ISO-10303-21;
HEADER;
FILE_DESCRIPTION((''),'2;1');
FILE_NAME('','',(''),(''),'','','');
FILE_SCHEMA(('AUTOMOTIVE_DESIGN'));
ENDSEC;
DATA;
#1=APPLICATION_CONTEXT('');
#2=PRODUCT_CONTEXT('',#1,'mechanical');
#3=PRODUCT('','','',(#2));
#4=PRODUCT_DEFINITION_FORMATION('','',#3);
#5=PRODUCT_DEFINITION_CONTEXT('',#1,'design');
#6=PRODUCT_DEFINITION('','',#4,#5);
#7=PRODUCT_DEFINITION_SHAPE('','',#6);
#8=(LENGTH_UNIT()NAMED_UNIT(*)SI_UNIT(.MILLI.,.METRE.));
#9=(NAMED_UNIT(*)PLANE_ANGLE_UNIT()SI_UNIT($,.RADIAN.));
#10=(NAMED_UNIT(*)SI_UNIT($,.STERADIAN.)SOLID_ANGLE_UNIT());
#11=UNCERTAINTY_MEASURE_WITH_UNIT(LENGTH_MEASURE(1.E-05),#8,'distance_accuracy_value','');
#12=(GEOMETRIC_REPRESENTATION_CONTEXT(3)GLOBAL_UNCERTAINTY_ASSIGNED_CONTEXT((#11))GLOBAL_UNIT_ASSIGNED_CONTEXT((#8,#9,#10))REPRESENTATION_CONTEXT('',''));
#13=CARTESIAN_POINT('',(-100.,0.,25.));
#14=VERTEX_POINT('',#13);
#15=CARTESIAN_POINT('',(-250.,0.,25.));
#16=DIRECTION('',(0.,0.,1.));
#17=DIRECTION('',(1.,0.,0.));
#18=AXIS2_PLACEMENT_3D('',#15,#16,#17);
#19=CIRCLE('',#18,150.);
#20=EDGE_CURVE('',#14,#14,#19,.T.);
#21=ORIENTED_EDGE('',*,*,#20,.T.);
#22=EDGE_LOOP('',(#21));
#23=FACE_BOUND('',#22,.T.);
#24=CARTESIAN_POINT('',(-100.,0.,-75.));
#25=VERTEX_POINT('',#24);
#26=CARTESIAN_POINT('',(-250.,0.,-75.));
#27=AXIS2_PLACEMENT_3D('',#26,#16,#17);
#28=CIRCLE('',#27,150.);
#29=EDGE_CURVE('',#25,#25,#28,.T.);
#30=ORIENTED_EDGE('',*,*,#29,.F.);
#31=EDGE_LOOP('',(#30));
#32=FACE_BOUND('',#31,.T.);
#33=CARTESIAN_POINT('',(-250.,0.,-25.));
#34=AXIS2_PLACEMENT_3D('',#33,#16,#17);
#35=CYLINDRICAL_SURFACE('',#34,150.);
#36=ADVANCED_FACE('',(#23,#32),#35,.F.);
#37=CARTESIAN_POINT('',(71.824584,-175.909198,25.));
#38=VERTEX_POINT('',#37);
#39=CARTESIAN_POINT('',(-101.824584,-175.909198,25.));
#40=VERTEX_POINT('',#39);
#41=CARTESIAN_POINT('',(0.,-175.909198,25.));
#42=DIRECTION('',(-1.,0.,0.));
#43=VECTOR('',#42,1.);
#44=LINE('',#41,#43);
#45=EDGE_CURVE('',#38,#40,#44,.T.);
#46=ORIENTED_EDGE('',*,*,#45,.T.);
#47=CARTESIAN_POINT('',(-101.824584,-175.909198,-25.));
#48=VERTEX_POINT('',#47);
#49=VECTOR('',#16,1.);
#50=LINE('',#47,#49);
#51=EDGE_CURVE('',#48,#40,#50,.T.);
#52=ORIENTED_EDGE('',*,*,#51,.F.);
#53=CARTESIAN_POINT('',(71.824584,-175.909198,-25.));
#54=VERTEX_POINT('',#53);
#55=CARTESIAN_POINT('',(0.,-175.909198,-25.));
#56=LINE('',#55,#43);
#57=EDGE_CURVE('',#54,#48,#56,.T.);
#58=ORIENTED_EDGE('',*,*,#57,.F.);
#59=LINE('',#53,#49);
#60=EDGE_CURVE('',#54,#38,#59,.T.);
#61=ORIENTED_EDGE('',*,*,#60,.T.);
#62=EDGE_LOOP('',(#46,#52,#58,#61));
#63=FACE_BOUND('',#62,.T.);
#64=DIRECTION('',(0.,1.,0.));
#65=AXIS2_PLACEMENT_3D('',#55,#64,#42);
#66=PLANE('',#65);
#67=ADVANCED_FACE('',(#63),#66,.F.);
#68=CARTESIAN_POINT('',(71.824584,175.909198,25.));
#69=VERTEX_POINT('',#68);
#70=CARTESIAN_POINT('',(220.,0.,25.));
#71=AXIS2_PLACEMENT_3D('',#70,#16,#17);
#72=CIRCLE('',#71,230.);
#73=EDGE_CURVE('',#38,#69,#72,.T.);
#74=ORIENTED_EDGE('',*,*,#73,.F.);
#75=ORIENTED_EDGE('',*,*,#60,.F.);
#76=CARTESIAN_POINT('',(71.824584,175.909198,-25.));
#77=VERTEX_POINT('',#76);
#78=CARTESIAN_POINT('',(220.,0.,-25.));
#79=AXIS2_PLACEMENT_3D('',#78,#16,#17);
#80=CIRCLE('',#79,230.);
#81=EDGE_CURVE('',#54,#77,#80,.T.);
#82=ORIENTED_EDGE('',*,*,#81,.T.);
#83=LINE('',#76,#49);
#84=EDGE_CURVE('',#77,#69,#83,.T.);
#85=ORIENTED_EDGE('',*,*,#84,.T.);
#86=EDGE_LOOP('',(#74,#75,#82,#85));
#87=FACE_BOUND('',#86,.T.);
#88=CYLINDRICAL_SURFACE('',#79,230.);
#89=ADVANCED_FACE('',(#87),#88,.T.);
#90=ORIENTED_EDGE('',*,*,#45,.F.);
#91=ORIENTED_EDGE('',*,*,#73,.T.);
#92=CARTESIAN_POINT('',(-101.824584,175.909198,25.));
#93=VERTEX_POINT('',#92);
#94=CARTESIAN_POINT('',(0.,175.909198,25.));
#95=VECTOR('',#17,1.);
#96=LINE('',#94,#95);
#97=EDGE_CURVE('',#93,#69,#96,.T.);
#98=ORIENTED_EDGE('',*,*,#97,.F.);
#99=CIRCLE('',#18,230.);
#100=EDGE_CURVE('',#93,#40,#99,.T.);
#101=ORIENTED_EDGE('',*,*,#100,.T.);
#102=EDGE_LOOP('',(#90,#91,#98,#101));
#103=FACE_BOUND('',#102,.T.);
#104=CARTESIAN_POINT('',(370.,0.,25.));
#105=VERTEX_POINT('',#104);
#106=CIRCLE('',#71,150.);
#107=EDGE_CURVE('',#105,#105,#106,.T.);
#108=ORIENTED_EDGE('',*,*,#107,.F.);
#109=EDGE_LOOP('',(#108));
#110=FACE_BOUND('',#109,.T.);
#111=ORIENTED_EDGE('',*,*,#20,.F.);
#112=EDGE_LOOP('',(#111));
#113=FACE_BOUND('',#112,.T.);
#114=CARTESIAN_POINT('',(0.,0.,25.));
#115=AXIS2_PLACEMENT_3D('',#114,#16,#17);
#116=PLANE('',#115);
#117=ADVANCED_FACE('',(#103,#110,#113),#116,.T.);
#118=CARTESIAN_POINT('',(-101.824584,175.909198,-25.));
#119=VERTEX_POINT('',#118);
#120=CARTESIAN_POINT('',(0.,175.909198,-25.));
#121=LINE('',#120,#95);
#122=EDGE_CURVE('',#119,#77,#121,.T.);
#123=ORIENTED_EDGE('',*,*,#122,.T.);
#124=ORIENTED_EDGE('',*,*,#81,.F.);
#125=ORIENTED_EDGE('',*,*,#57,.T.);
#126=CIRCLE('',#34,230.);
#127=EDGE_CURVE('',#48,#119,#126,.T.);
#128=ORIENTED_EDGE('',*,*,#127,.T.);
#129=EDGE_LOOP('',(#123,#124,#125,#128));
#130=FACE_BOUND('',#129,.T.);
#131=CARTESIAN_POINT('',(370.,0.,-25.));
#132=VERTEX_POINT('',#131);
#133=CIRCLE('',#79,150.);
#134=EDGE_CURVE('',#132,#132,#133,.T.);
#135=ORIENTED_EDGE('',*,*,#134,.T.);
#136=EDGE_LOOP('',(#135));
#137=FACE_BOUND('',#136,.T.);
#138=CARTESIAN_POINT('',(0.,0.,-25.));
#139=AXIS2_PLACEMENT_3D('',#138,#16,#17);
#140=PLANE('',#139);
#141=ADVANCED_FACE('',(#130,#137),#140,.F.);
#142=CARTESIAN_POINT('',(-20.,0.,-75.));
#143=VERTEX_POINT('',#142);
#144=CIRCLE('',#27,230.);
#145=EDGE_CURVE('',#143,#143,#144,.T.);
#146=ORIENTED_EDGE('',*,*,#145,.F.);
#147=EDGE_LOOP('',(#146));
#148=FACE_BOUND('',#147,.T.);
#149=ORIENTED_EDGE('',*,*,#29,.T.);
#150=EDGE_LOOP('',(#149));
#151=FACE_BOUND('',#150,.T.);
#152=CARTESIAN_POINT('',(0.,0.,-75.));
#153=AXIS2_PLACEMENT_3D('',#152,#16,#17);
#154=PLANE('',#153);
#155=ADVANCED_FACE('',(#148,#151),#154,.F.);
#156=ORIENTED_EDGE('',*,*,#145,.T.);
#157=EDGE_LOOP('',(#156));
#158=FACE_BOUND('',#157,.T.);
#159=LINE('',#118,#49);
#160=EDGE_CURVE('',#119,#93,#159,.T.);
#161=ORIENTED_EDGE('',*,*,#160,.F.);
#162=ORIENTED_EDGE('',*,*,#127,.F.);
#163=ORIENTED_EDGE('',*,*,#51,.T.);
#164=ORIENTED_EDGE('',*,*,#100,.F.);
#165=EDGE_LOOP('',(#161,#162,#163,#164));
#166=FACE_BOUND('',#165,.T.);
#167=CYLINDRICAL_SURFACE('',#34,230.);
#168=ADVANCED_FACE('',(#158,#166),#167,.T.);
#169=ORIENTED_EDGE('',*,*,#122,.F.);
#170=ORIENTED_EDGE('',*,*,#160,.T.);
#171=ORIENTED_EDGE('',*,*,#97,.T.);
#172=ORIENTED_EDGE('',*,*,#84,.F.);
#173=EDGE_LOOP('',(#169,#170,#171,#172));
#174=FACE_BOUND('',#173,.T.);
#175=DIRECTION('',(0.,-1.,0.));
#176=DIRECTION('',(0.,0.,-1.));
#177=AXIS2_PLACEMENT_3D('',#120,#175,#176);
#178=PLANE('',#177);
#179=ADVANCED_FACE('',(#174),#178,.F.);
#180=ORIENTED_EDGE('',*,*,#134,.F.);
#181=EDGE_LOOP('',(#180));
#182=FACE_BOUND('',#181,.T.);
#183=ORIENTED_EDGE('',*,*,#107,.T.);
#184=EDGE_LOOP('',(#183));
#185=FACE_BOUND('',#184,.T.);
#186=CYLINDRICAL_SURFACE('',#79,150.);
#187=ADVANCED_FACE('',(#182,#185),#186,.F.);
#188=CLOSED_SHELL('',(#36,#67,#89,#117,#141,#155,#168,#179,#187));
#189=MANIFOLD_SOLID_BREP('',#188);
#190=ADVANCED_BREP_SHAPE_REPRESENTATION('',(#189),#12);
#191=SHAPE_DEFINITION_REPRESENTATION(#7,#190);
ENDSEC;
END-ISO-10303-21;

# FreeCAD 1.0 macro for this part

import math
import FreeCAD as App
import Part
import Sketcher
Q = App.Units.Quantity

doc = App.newDocument("Part")
body = doc.addObject("PartDesign::Body", "Body")

# Sketch on XY plane
sketch1 = body.newObject("Sketcher::SketchObject", "Sketch")
sketch1.AttachmentSupport = (doc.getObject("XY_Plane"), [""])
sketch1.MapMode = "FlatFace"
sketch1.addGeometry(Part.LineSegment(App.Vector(72, 176, 0), App.Vector(-102, 176, 0)), False)
sketch1.addGeometry(Part.ArcOfCircle(Part.Circle(App.Vector(-250, 0, 0), App.Vector(0, 0, 1), 230), math.radians(50), math.radians(310)), False)
sketch1.addGeometry(Part.LineSegment(App.Vector(-102, -176, 0), App.Vector(72, -176, 0)), False)
sketch1.addGeometry(Part.ArcOfCircle(Part.Circle(App.Vector(220, 0, 0), App.Vector(0, 0, 1), 230), math.radians(-130), math.radians(130)), False)
sketch1.addGeometry(Part.Circle(App.Vector(-250, 0, 0), App.Vector(0, 0, 1), 150), False)
sketch1.addGeometry(Part.Circle(App.Vector(220, 0, 0), App.Vector(0, 0, 1), 150), False)
sketch1.addConstraint(Sketcher.Constraint("Coincident", 0, 2, 1, 1))
sketch1.addConstraint(Sketcher.Constraint("Coincident", 1, 2, 2, 1))
sketch1.addConstraint(Sketcher.Constraint("Coincident", 2, 2, 3, 1))
sketch1.addConstraint(Sketcher.Constraint("Coincident", 3, 2, 0, 1))
sketch1.addConstraint(Sketcher.Constraint("Horizontal", 0))
sketch1.addConstraint(Sketcher.Constraint("Horizontal", 2))
sketch1.addConstraint(Sketcher.Constraint("Coincident", 4, 3, 1, 3))
sketch1.addConstraint(Sketcher.Constraint("Coincident", 5, 3, 3, 3))
sketch1.addConstraint(Sketcher.Constraint("Equal", 1, 3))
sketch1.addConstraint(Sketcher.Constraint("Equal", 4, 5))
sketch1.addConstraint(Sketcher.Constraint("Symmetric", 0, 2, 1, 2, -1))
sketch1.addConstraint(Sketcher.Constraint("PointOnObject", 3, 3, -1))
sketch1.addConstraint(Sketcher.Constraint("Diameter", 4, Q("300 mm")))
sketch1.addConstraint(Sketcher.Constraint("Radius", 1, Q("230 mm")))
sketch1.addConstraint(Sketcher.Constraint("DistanceX", 1, 3, -1, 1, Q("250 mm")))
sketch1.addConstraint(Sketcher.Constraint("DistanceX", -1, 1, 3, 3, Q("220 mm")))
sketch1.addConstraint(Sketcher.Constraint("DistanceY", -1, 1, 0, 2, Q("175.909198 mm")))
pad1 = body.newObject("PartDesign::Pad", "Pad")
pad1.Profile = sketch1
pad1.Type = "TwoLengths"
pad1.Length = 25
pad1.Length2 = 25

# Sketch on XY plane
sketch2 = body.newObject("Sketcher::SketchObject", "Sketch001")
sketch2.AttachmentSupport = (doc.getObject("XY_Plane"), [""])
sketch2.MapMode = "FlatFace"
sketch2.addGeometry(Part.Circle(App.Vector(-250, 0, 0), App.Vector(0, 0, 1), 230), False)
sketch2.addGeometry(Part.Circle(App.Vector(-250, 0, 0), App.Vector(0, 0, 1), 150), False)
sketch2.addConstraint(Sketcher.Constraint("Coincident", 1, 3, 0, 3))
sketch2.addConstraint(Sketcher.Constraint("PointOnObject", 0, 3, -1))
sketch2.addConstraint(Sketcher.Constraint("Diameter", 0, Q("460 mm")))
sketch2.addConstraint(Sketcher.Constraint("Diameter", 1, Q("300 mm")))
sketch2.addConstraint(Sketcher.Constraint("DistanceX", 0, 3, -1, 1, Q("250 mm")))
pad2 = body.newObject("PartDesign::Pad", "Pad001")
pad2.Profile = sketch2
pad2.Length = 75
pad2.Reversed = True

doc.recompute()
